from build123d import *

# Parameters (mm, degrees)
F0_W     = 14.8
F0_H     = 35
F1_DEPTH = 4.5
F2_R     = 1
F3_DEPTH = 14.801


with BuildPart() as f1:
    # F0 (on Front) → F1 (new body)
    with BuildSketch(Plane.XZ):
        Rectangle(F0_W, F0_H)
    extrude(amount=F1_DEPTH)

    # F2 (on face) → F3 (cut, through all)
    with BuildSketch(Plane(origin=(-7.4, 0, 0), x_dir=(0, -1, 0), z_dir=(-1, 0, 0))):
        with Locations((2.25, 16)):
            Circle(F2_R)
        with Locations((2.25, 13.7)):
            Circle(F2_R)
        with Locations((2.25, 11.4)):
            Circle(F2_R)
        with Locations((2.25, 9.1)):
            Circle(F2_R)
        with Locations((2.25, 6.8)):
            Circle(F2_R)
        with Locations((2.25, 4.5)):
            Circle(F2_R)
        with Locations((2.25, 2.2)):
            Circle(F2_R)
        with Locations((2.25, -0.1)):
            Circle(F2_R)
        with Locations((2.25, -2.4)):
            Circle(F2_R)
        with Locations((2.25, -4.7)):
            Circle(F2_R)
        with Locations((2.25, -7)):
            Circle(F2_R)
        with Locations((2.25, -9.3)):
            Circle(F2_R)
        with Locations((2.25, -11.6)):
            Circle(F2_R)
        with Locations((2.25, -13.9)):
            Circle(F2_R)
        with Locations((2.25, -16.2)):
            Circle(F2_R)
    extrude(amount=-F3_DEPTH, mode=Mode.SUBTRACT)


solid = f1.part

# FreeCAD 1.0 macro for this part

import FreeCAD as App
import Part
import Sketcher
Q = App.Units.Quantity

doc = App.newDocument("Part")
params = doc.addObject("Spreadsheet::Sheet", "Params")
for row, (alias, value) in enumerate([
    ("sketch1_height", "35 mm"),
    ("sketch1_width", "14.8 mm"),
    ("pad1_length", "4.5 mm"),
    ("sketch2_diameter", "2 mm"),
], start=1):
    params.set(f"A{row}", alias)
    params.set(f"B{row}", "=" + value)
    params.setAlias(f"B{row}", alias)

body = doc.addObject("PartDesign::Body", "Body")

sketch1 = body.newObject("Sketcher::SketchObject", "Sketch")
sketch1.AttachmentSupport = (doc.getObject("XZ_Plane"), [""])
sketch1.MapMode = "FlatFace"
sketch1.addGeometry([
    Part.LineSegment(App.Vector(-7, 18, 0), App.Vector(-7, -18, 0)),
    Part.LineSegment(App.Vector(-7, -18, 0), App.Vector(7, -18, 0)),
    Part.LineSegment(App.Vector(7, -18, 0), App.Vector(7, 18, 0)),
    Part.LineSegment(App.Vector(7, 18, 0), App.Vector(-7, 18, 0)),
], False)
sketch1.addConstraint([
    Sketcher.Constraint("Coincident", 0, 2, 1, 1),
    Sketcher.Constraint("Coincident", 1, 2, 2, 1),
    Sketcher.Constraint("Coincident", 2, 2, 3, 1),
    Sketcher.Constraint("Coincident", 3, 2, 0, 1),
    Sketcher.Constraint("Vertical", 0),
    Sketcher.Constraint("Horizontal", 1),
    Sketcher.Constraint("Vertical", 2),
    Sketcher.Constraint("Horizontal", 3),
    Sketcher.Constraint("Symmetric", 0, 2, 2, 2, -1, 1),
    Sketcher.Constraint("DistanceY", 0, 2, 0, 1, Q("35 mm")),
    Sketcher.Constraint("DistanceX", 1, 1, 1, 2, Q("14.8 mm")),
])
sketch1.setExpression("Constraints[9]", "Params.sketch1_height")
sketch1.setExpression("Constraints[10]", "Params.sketch1_width")
pad1 = body.newObject("PartDesign::Pad", "Pad")
pad1.Profile = sketch1
pad1.setExpression("Length", "Params.pad1_length")

sketch2 = body.newObject("Sketcher::SketchObject", "Sketch001")
sketch2.AttachmentSupport = (doc.getObject("YZ_Plane"), [""])
sketch2.MapMode = "FlatFace"
sketch2.AttachmentOffset = App.Placement(App.Vector(0, 0, -7.4), App.Rotation())
sketch2.addGeometry([
    Part.Circle(App.Vector(-2.2, 16, 0), App.Vector(0, 0, 1), 1),
    Part.Circle(App.Vector(-2.2, 13.7, 0), App.Vector(0, 0, 1), 1),
    Part.Circle(App.Vector(-2.2, 11.4, 0), App.Vector(0, 0, 1), 1),
    Part.Circle(App.Vector(-2.2, 9.1, 0), App.Vector(0, 0, 1), 1),
    Part.Circle(App.Vector(-2.2, 6.8, 0), App.Vector(0, 0, 1), 1),
    Part.Circle(App.Vector(-2.2, 4.5, 0), App.Vector(0, 0, 1), 1),
    Part.Circle(App.Vector(-2.2, 2.2, 0), App.Vector(0, 0, 1), 1),
    Part.Circle(App.Vector(-2.2, -0.1, 0), App.Vector(0, 0, 1), 1),
    Part.Circle(App.Vector(-2.2, -2.4, 0), App.Vector(0, 0, 1), 1),
    Part.Circle(App.Vector(-2.2, -4.7, 0), App.Vector(0, 0, 1), 1),
    Part.Circle(App.Vector(-2.2, -7, 0), App.Vector(0, 0, 1), 1),
    Part.Circle(App.Vector(-2.2, -9.3, 0), App.Vector(0, 0, 1), 1),
    Part.Circle(App.Vector(-2.2, -11.6, 0), App.Vector(0, 0, 1), 1),
    Part.Circle(App.Vector(-2.2, -13.9, 0), App.Vector(0, 0, 1), 1),
    Part.Circle(App.Vector(-2.2, -16.2, 0), App.Vector(0, 0, 1), 1),
], False)
sketch2.addConstraint([
    Sketcher.Constraint("Equal", 0, 1),
    Sketcher.Constraint("Equal", 1, 2),
    Sketcher.Constraint("Equal", 2, 3),
    Sketcher.Constraint("Equal", 3, 4),
    Sketcher.Constraint("Equal", 4, 5),
    Sketcher.Constraint("Equal", 5, 6),
    Sketcher.Constraint("Equal", 6, 7),
    Sketcher.Constraint("Equal", 7, 8),
    Sketcher.Constraint("Equal", 8, 9),
    Sketcher.Constraint("Equal", 9, 10),
    Sketcher.Constraint("Equal", 10, 11),
    Sketcher.Constraint("Equal", 11, 12),
    Sketcher.Constraint("Equal", 12, 13),
    Sketcher.Constraint("Equal", 13, 14),
    Sketcher.Constraint("Vertical", 0, 3, 1, 3),
    Sketcher.Constraint("Vertical", 1, 3, 2, 3),
    Sketcher.Constraint("Vertical", 2, 3, 3, 3),
    Sketcher.Constraint("Vertical", 3, 3, 4, 3),
    Sketcher.Constraint("Vertical", 4, 3, 5, 3),
    Sketcher.Constraint("Vertical", 5, 3, 6, 3),
    Sketcher.Constraint("Vertical", 6, 3, 7, 3),
    Sketcher.Constraint("Vertical", 7, 3, 8, 3),
    Sketcher.Constraint("Vertical", 8, 3, 9, 3),
    Sketcher.Constraint("Vertical", 9, 3, 10, 3),
    Sketcher.Constraint("Vertical", 10, 3, 11, 3),
    Sketcher.Constraint("Vertical", 11, 3, 12, 3),
    Sketcher.Constraint("Vertical", 12, 3, 13, 3),
    Sketcher.Constraint("Vertical", 13, 3, 14, 3),
    Sketcher.Constraint("Diameter", 0, Q("2 mm")),
    Sketcher.Constraint("DistanceY", -1, 1, 0, 3, Q("16 mm")),
    Sketcher.Constraint("DistanceY", 10, 3, -1, 1, Q("7 mm")),
    Sketcher.Constraint("DistanceY", -1, 1, 1, 3, Q("13.7 mm")),
    Sketcher.Constraint("DistanceY", -1, 1, 2, 3, Q("11.4 mm")),
    Sketcher.Constraint("DistanceY", -1, 1, 3, 3, Q("9.1 mm")),
    Sketcher.Constraint("DistanceY", -1, 1, 4, 3, Q("6.8 mm")),
    Sketcher.Constraint("DistanceY", -1, 1, 5, 3, Q("4.5 mm")),
    Sketcher.Constraint("DistanceY", -1, 1, 6, 3, Q("2.2 mm")),
    Sketcher.Constraint("DistanceY", 7, 3, -1, 1, Q("0.1 mm")),
    Sketcher.Constraint("DistanceY", 8, 3, -1, 1, Q("2.4 mm")),
    Sketcher.Constraint("DistanceY", 9, 3, -1, 1, Q("4.7 mm")),
    Sketcher.Constraint("DistanceY", 11, 3, -1, 1, Q("9.3 mm")),
    Sketcher.Constraint("DistanceY", 12, 3, -1, 1, Q("11.6 mm")),
    Sketcher.Constraint("DistanceY", 13, 3, -1, 1, Q("13.9 mm")),
    Sketcher.Constraint("DistanceY", 14, 3, -1, 1, Q("16.2 mm")),
    Sketcher.Constraint("DistanceX", 0, 3, -1, 1, Q("2.25 mm")),
])
sketch2.setExpression("Constraints[28]", "Params.sketch2_diameter")
pocket1 = body.newObject("PartDesign::Pocket", "Pocket")
pocket1.Profile = sketch2
pocket1.Type = "ThroughAll"
pocket1.Reversed = True

doc.recompute()
